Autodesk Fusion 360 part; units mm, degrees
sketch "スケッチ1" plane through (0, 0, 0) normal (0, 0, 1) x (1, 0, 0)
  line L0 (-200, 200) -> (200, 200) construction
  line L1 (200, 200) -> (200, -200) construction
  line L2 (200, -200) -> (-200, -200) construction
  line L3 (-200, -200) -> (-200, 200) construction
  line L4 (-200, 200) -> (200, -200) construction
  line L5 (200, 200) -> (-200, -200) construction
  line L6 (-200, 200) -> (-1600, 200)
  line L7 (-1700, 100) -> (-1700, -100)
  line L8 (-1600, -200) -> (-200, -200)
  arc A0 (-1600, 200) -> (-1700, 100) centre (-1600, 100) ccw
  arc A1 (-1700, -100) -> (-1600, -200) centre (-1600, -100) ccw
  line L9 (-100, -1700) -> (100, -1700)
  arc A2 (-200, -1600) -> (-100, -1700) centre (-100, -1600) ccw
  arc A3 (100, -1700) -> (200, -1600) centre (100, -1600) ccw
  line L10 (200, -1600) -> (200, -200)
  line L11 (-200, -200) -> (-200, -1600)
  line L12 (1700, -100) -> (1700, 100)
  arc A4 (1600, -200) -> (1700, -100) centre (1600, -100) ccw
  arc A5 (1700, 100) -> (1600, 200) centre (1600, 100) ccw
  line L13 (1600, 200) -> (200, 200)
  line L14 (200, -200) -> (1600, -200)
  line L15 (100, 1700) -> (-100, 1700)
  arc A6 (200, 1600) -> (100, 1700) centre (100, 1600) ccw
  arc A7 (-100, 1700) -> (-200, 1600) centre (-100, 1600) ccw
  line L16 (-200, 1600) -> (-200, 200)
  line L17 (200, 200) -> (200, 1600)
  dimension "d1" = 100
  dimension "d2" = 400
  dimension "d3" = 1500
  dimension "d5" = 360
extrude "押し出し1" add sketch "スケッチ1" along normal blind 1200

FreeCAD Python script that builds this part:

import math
import FreeCAD as App
import Part
import Sketcher
from FreeCAD import Vector

doc = App.newDocument("Part")
body = doc.addObject("PartDesign::Body", "Body")

sketch1 = body.newObject("Sketcher::SketchObject", "Sketch")
sketch1.AttachmentSupport = (doc.getObject("XY_Plane"), [""])
sketch1.MapMode = "FlatFace"
sketch1.addGeometry(Part.LineSegment(Vector(-200, 1600, 0), Vector(-200, 200, 0)), False)
sketch1.addGeometry(Part.LineSegment(Vector(-200, 200, 0), Vector(-1600, 200, 0)), False)
sketch1.addGeometry(Part.ArcOfCircle(Part.Circle(Vector(-1600, 100, 0), Vector(0, 0, 1), 100), math.radians(90), math.radians(180)), False)
sketch1.addGeometry(Part.LineSegment(Vector(-1700, 100, 0), Vector(-1700, -100, 0)), False)
sketch1.addGeometry(Part.ArcOfCircle(Part.Circle(Vector(-1600, -100, 0), Vector(0, 0, 1), 100), math.radians(180), math.radians(270)), False)
sketch1.addGeometry(Part.LineSegment(Vector(-1600, -200, 0), Vector(-200, -200, 0)), False)
sketch1.addGeometry(Part.LineSegment(Vector(-200, -200, 0), Vector(-200, -1600, 0)), False)
sketch1.addGeometry(Part.ArcOfCircle(Part.Circle(Vector(-100, -1600, 0), Vector(0, 0, 1), 100), math.radians(180), math.radians(270)), False)
sketch1.addGeometry(Part.LineSegment(Vector(-100, -1700, 0), Vector(100, -1700, 0)), False)
sketch1.addGeometry(Part.ArcOfCircle(Part.Circle(Vector(100, -1600, 0), Vector(0, 0, 1), 100), math.radians(-90), math.radians(0)), False)
sketch1.addGeometry(Part.LineSegment(Vector(200, -1600, 0), Vector(200, -200, 0)), False)
sketch1.addGeometry(Part.LineSegment(Vector(200, -200, 0), Vector(1600, -200, 0)), False)
sketch1.addGeometry(Part.ArcOfCircle(Part.Circle(Vector(1600, -100, 0), Vector(0, 0, 1), 100), math.radians(-90), math.radians(0)), False)
sketch1.addGeometry(Part.LineSegment(Vector(1700, -100, 0), Vector(1700, 100, 0)), False)
sketch1.addGeometry(Part.ArcOfCircle(Part.Circle(Vector(1600, 100, 0), Vector(0, 0, 1), 100), math.radians(0), math.radians(90)), False)
sketch1.addGeometry(Part.LineSegment(Vector(1600, 200, 0), Vector(200, 200, 0)), False)
sketch1.addGeometry(Part.LineSegment(Vector(200, 200, 0), Vector(200, 1600, 0)), False)
sketch1.addGeometry(Part.ArcOfCircle(Part.Circle(Vector(100, 1600, 0), Vector(0, 0, 1), 100), math.radians(0), math.radians(90)), False)
sketch1.addGeometry(Part.LineSegment(Vector(100, 1700, 0), Vector(-100, 1700, 0)), False)
sketch1.addGeometry(Part.ArcOfCircle(Part.Circle(Vector(-100, 1600, 0), Vector(0, 0, 1), 100), math.radians(90), math.radians(180)), False)
sketch1.addConstraint(Sketcher.Constraint("Coincident", 0, 2, 1, 1))
sketch1.addConstraint(Sketcher.Constraint("Tangent", 1, 2, 2, 1))
sketch1.addConstraint(Sketcher.Constraint("Tangent", 2, 2, 3, 1))
sketch1.addConstraint(Sketcher.Constraint("Tangent", 3, 2, 4, 1))
sketch1.addConstraint(Sketcher.Constraint("Tangent", 4, 2, 5, 1))
sketch1.addConstraint(Sketcher.Constraint("Coincident", 5, 2, 6, 1))
sketch1.addConstraint(Sketcher.Constraint("Tangent", 6, 2, 7, 1))
sketch1.addConstraint(Sketcher.Constraint("Tangent", 7, 2, 8, 1))
sketch1.addConstraint(Sketcher.Constraint("Tangent", 8, 2, 9, 1))
sketch1.addConstraint(Sketcher.Constraint("Tangent", 9, 2, 10, 1))
sketch1.addConstraint(Sketcher.Constraint("Coincident", 10, 2, 11, 1))
sketch1.addConstraint(Sketcher.Constraint("Tangent", 11, 2, 12, 1))
sketch1.addConstraint(Sketcher.Constraint("Tangent", 12, 2, 13, 1))
sketch1.addConstraint(Sketcher.Constraint("Tangent", 13, 2, 14, 1))
sketch1.addConstraint(Sketcher.Constraint("Tangent", 14, 2, 15, 1))
sketch1.addConstraint(Sketcher.Constraint("Coincident", 15, 2, 16, 1))
sketch1.addConstraint(Sketcher.Constraint("Tangent", 16, 2, 17, 1))
sketch1.addConstraint(Sketcher.Constraint("Tangent", 17, 2, 18, 1))
sketch1.addConstraint(Sketcher.Constraint("Tangent", 18, 2, 19, 1))
sketch1.addConstraint(Sketcher.Constraint("Tangent", 19, 2, 0, 1))
sketch1.addConstraint(Sketcher.Constraint("Vertical", 0))
sketch1.addConstraint(Sketcher.Constraint("Horizontal", 1))
sketch1.addConstraint(Sketcher.Constraint("Vertical", 3))
sketch1.addConstraint(Sketcher.Constraint("Horizontal", 5))
sketch1.addConstraint(Sketcher.Constraint("Vertical", 6))
sketch1.addConstraint(Sketcher.Constraint("Horizontal", 8))
sketch1.addConstraint(Sketcher.Constraint("Vertical", 10))
sketch1.addConstraint(Sketcher.Constraint("Horizontal", 11))
sketch1.addConstraint(Sketcher.Constraint("Vertical", 13))
sketch1.addConstraint(Sketcher.Constraint("Horizontal", 15))
sketch1.addConstraint(Sketcher.Constraint("Vertical", 16))
sketch1.addConstraint(Sketcher.Constraint("Horizontal", 18))
sketch1.addConstraint(Sketcher.Constraint("Equal", 2, 4))
sketch1.addConstraint(Sketcher.Constraint("Equal", 4, 7))
sketch1.addConstraint(Sketcher.Constraint("Equal", 7, 9))
sketch1.addConstraint(Sketcher.Constraint("Equal", 9, 12))
sketch1.addConstraint(Sketcher.Constraint("Equal", 12, 14))
sketch1.addConstraint(Sketcher.Constraint("Equal", 14, 17))
sketch1.addConstraint(Sketcher.Constraint("Equal", 17, 19))
sketch1.addConstraint(Sketcher.Constraint("Symmetric", 2, 3, 12, 3, -1, 1))
sketch1.addConstraint(Sketcher.Constraint("Symmetric", 7, 3, 17, 3, -1, 1))
sketch1.addConstraint(Sketcher.Constraint("Symmetric", 5, 2, 10, 2, -2))
sketch1.addConstraint(Sketcher.Constraint("Symmetric", 0, 2, 15, 2, -2))
sketch1.addConstraint(Sketcher.Constraint("Equal", 15, 0))
sketch1.addConstraint(Sketcher.Constraint("Equal", 18, 3))
sketch1.addConstraint(Sketcher.Constraint("Radius", 2, 100.0))
sketch1.addConstraint(Sketcher.Constraint("DistanceY", -1, 1, 2, 3, 100.0))
sketch1.addConstraint(Sketcher.Constraint("DistanceX", 4, 3, 7, 3, 1500.0))
pad1 = body.newObject("PartDesign::Pad", "Pad")
pad1.Profile = sketch1
pad1.Length = 1200

doc.recompute()
